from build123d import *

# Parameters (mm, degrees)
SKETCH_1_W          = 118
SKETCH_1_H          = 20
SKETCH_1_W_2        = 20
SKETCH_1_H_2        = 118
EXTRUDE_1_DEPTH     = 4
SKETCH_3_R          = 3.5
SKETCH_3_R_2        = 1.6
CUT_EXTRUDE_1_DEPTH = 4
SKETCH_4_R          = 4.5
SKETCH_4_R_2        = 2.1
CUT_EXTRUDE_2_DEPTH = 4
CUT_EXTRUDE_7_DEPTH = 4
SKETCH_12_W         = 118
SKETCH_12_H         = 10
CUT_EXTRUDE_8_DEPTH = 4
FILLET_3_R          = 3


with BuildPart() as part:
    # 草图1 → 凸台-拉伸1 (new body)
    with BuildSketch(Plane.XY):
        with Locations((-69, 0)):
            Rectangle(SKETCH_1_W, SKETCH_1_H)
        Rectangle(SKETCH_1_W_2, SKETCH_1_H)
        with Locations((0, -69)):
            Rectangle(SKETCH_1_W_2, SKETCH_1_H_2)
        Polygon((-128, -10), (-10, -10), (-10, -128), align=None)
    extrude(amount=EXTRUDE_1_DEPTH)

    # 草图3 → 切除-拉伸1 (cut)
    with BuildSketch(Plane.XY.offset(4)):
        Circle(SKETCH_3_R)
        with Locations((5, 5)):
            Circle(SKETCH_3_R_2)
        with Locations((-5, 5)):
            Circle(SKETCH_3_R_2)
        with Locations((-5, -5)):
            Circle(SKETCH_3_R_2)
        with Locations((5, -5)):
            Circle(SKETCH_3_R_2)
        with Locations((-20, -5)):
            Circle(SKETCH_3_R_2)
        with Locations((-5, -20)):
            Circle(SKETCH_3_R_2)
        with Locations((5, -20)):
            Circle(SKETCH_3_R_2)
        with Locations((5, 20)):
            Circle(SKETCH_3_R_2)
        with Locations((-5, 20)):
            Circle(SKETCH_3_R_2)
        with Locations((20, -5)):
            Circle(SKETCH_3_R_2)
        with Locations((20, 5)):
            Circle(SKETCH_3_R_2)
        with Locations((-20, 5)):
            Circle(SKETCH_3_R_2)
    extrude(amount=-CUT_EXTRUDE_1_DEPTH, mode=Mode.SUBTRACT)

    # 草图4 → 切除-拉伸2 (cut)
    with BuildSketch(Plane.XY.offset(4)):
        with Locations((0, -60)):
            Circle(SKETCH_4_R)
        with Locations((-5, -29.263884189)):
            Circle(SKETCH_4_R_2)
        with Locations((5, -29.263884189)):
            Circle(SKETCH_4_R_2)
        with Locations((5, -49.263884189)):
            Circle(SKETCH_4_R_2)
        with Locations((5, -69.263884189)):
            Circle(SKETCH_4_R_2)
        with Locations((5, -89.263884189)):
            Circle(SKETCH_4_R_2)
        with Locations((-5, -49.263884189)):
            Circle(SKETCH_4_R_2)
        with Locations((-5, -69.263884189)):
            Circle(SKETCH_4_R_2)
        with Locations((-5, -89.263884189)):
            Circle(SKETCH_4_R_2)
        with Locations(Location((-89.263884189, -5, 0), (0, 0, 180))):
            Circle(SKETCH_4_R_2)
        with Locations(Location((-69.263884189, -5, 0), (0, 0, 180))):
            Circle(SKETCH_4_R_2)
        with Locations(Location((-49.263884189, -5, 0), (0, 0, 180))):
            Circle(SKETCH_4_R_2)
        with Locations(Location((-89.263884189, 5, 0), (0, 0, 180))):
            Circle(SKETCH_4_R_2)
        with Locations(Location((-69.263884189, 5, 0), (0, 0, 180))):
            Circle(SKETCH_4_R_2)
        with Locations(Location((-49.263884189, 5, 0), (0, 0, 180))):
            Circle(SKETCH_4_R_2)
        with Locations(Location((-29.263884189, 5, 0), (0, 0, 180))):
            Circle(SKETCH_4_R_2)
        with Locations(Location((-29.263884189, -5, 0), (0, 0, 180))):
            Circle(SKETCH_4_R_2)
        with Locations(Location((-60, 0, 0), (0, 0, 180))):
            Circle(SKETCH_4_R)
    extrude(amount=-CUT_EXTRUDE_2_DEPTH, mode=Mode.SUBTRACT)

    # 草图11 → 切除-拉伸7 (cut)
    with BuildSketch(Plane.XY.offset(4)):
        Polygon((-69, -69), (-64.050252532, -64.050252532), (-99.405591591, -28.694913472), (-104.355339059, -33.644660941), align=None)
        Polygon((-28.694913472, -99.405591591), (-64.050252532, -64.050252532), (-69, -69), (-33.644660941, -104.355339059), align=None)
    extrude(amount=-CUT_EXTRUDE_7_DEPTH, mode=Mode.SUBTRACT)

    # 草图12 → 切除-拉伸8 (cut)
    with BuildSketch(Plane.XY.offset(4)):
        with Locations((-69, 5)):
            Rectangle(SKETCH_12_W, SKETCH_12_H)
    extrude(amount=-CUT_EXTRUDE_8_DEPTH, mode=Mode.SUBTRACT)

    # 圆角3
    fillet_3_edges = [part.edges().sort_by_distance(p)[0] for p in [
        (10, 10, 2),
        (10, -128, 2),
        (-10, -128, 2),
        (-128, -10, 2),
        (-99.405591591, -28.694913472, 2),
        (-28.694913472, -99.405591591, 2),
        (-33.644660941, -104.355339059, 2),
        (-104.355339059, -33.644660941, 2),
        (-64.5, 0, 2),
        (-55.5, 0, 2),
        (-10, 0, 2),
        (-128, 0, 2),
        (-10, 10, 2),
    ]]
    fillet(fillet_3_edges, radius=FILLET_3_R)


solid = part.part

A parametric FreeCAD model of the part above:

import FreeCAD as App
import Part
import Sketcher
Q = App.Units.Quantity


def edges_at(feature, points):
    """Names of the edges that pass closest to the given points."""
    edges = feature.Shape.Edges
    near = lambda p: min(range(len(edges)), key=lambda i: edges[i].distToShape(Part.Vertex(*p))[0])
    return sorted({f"Edge{near(p) + 1}" for p in points})

doc = App.newDocument("Part")
body = doc.addObject("PartDesign::Body", "Body")

# Sketch on XY plane
sketch1 = doc.addObject("Sketcher::SketchObject", "Sketch")
body.addObject(sketch1)
sketch1.AttachmentSupport = (doc.XY_Plane, [""])
sketch1.MapMode = "FlatFace"
sketch1.addGeometry(Part.LineSegment(App.Vector(-128, 10, 0), App.Vector(-128, -10, 0)), False)
sketch1.addGeometry(Part.LineSegment(App.Vector(-128, -10, 0), App.Vector(-10, -128, 0)), False)
sketch1.addGeometry(Part.LineSegment(App.Vector(-10, -128, 0), App.Vector(10, -128, 0)), False)
sketch1.addGeometry(Part.LineSegment(App.Vector(10, -128, 0), App.Vector(10, 10, 0)), False)
sketch1.addGeometry(Part.LineSegment(App.Vector(10, 10, 0), App.Vector(-128, 10, 0)), False)
sketch1.addConstraint(Sketcher.Constraint("Coincident", 0, 2, 1, 1))
sketch1.addConstraint(Sketcher.Constraint("Coincident", 1, 2, 2, 1))
sketch1.addConstraint(Sketcher.Constraint("Coincident", 2, 2, 3, 1))
sketch1.addConstraint(Sketcher.Constraint("Coincident", 3, 2, 4, 1))
sketch1.addConstraint(Sketcher.Constraint("Coincident", 4, 2, 0, 1))
sketch1.addConstraint(Sketcher.Constraint("Vertical", 0))
sketch1.addConstraint(Sketcher.Constraint("Horizontal", 2))
sketch1.addConstraint(Sketcher.Constraint("Vertical", 3))
sketch1.addConstraint(Sketcher.Constraint("Horizontal", 4))
sketch1.addConstraint(Sketcher.Constraint("Equal", 2, 0))
sketch1.addConstraint(Sketcher.Constraint("Equal", 4, 3))
sketch1.addConstraint(Sketcher.Constraint("DistanceX", 2, 1, 2, 2, 20.0))
sketch1.addConstraint(Sketcher.Constraint("DistanceX", 4, 2, 4, 1, 138.0))
sketch1.addConstraint(Sketcher.Constraint("DistanceX", 0, 2, -1, 1, 128.0))
sketch1.addConstraint(Sketcher.Constraint("DistanceY", 0, 2, -1, 1, 10.0))
pad1 = doc.addObject("PartDesign::Pad", "Pad")
body.addObject(pad1)
pad1.Profile = sketch1
pad1.Length = 4

# Sketch on XY plane
sketch2 = doc.addObject("Sketcher::SketchObject", "Sketch001")
body.addObject(sketch2)
sketch2.AttachmentSupport = (doc.XY_Plane, [""])
sketch2.MapMode = "FlatFace"
sketch2.AttachmentOffset = App.Placement(App.Vector(0, 0, 4), App.Rotation())
sketch2.addGeometry(Part.Circle(App.Vector(0, 0, 0), App.Vector(0, 0, 1), 3.5), False)
sketch2.addGeometry(Part.Circle(App.Vector(5, 5, 0), App.Vector(0, 0, 1), 1.6), False)
sketch2.addGeometry(Part.Circle(App.Vector(-5, 5, 0), App.Vector(0, 0, 1), 1.6), False)
sketch2.addGeometry(Part.Circle(App.Vector(-5, -5, 0), App.Vector(0, 0, 1), 1.6), False)
sketch2.addGeometry(Part.Circle(App.Vector(5, -5, 0), App.Vector(0, 0, 1), 1.6), False)
sketch2.addGeometry(Part.Circle(App.Vector(-20, -5, 0), App.Vector(0, 0, 1), 1.6), False)
sketch2.addGeometry(Part.Circle(App.Vector(-5, -20, 0), App.Vector(0, 0, 1), 1.6), False)
sketch2.addGeometry(Part.Circle(App.Vector(5, -20, 0), App.Vector(0, 0, 1), 1.6), False)
sketch2.addGeometry(Part.Circle(App.Vector(5, 20, 0), App.Vector(0, 0, 1), 1.6), False)
sketch2.addGeometry(Part.Circle(App.Vector(-5, 20, 0), App.Vector(0, 0, 1), 1.6), False)
sketch2.addGeometry(Part.Circle(App.Vector(20, -5, 0), App.Vector(0, 0, 1), 1.6), False)
sketch2.addGeometry(Part.Circle(App.Vector(20, 5, 0), App.Vector(0, 0, 1), 1.6), False)
sketch2.addGeometry(Part.Circle(App.Vector(-20, 5, 0), App.Vector(0, 0, 1), 1.6), False)
sketch2.addConstraint(Sketcher.Constraint("Coincident", 0, 3, -1, 1))
sketch2.addConstraint(Sketcher.Constraint("Equal", 1, 2))
sketch2.addConstraint(Sketcher.Constraint("Equal", 2, 3))
sketch2.addConstraint(Sketcher.Constraint("Equal", 3, 4))
sketch2.addConstraint(Sketcher.Constraint("Equal", 4, 5))
sketch2.addConstraint(Sketcher.Constraint("Equal", 5, 6))
sketch2.addConstraint(Sketcher.Constraint("Equal", 6, 7))
sketch2.addConstraint(Sketcher.Constraint("Equal", 7, 8))
sketch2.addConstraint(Sketcher.Constraint("Equal", 8, 9))
sketch2.addConstraint(Sketcher.Constraint("Equal", 9, 10))
sketch2.addConstraint(Sketcher.Constraint("Equal", 10, 11))
sketch2.addConstraint(Sketcher.Constraint("Equal", 11, 12))
sketch2.addConstraint(Sketcher.Constraint("Symmetric", 1, 3, 3, 3, -1, 1))
sketch2.addConstraint(Sketcher.Constraint("Symmetric", 2, 3, 4, 3, -1, 1))
sketch2.addConstraint(Sketcher.Constraint("Symmetric", 6, 3, 8, 3, -1, 1))
sketch2.addConstraint(Sketcher.Constraint("Symmetric", 7, 3, 9, 3, -1, 1))
sketch2.addConstraint(Sketcher.Constraint("Symmetric", 5, 3, 11, 3, -1, 1))
sketch2.addConstraint(Sketcher.Constraint("Symmetric", 10, 3, 12, 3, -1, 1))
sketch2.addConstraint(Sketcher.Constraint("Symmetric", 1, 3, 2, 3, -2))
sketch2.addConstraint(Sketcher.Constraint("Symmetric", 6, 3, 7, 3, -2))
sketch2.addConstraint(Sketcher.Constraint("Symmetric", 5, 3, 10, 3, -2))
sketch2.addConstraint(Sketcher.Constraint("Horizontal", 4, 3, 5, 3))
sketch2.addConstraint(Sketcher.Constraint("Vertical", 3, 3, 6, 3))
sketch2.addConstraint(Sketcher.Constraint("Diameter", 0, 7.0))
sketch2.addConstraint(Sketcher.Constraint("Diameter", 1, 3.2))
sketch2.addConstraint(Sketcher.Constraint("DistanceX", -1, 1, 1, 3, 5.0))
sketch2.addConstraint(Sketcher.Constraint("DistanceY", -1, 1, 1, 3, 5.0))
sketch2.addConstraint(Sketcher.Constraint("DistanceX", 5, 3, -1, 1, 20.0))
sketch2.addConstraint(Sketcher.Constraint("DistanceY", 6, 3, -1, 1, 20.0))
pocket1 = doc.addObject("PartDesign::Pocket", "Pocket")
body.addObject(pocket1)
pocket1.Profile = sketch2
pocket1.Length = 4

# Sketch on XY plane
sketch3 = doc.addObject("Sketcher::SketchObject", "Sketch002")
body.addObject(sketch3)
sketch3.AttachmentSupport = (doc.XY_Plane, [""])
sketch3.MapMode = "FlatFace"
sketch3.AttachmentOffset = App.Placement(App.Vector(0, 0, 4), App.Rotation())
sketch3.addGeometry(Part.Circle(App.Vector(0, -60, 0), App.Vector(0, 0, 1), 4.5), False)
sketch3.addGeometry(Part.Circle(App.Vector(-5, -29.263884, 0), App.Vector(0, 0, 1), 2.1), False)
sketch3.addGeometry(Part.Circle(App.Vector(5, -29.263884, 0), App.Vector(0, 0, 1), 2.1), False)
sketch3.addGeometry(Part.Circle(App.Vector(5, -49.263884, 0), App.Vector(0, 0, 1), 2.1), False)
sketch3.addGeometry(Part.Circle(App.Vector(5, -69.263884, 0), App.Vector(0, 0, 1), 2.1), False)
sketch3.addGeometry(Part.Circle(App.Vector(5, -89.263884, 0), App.Vector(0, 0, 1), 2.1), False)
sketch3.addGeometry(Part.Circle(App.Vector(-5, -49.263884, 0), App.Vector(0, 0, 1), 2.1), False)
sketch3.addGeometry(Part.Circle(App.Vector(-5, -69.263884, 0), App.Vector(0, 0, 1), 2.1), False)
sketch3.addGeometry(Part.Circle(App.Vector(-5, -89.263884, 0), App.Vector(0, 0, 1), 2.1), False)
sketch3.addGeometry(Part.Circle(App.Vector(-89.263884, -5, 0), App.Vector(0, 0, 1), 2.1), False)
sketch3.addGeometry(Part.Circle(App.Vector(-69.263884, -5, 0), App.Vector(0, 0, 1), 2.1), False)
sketch3.addGeometry(Part.Circle(App.Vector(-49.263884, -5, 0), App.Vector(0, 0, 1), 2.1), False)
sketch3.addGeometry(Part.Circle(App.Vector(-89.263884, 5, 0), App.Vector(0, 0, 1), 2.1), False)
sketch3.addGeometry(Part.Circle(App.Vector(-69.263884, 5, 0), App.Vector(0, 0, 1), 2.1), False)
sketch3.addGeometry(Part.Circle(App.Vector(-49.263884, 5, 0), App.Vector(0, 0, 1), 2.1), False)
sketch3.addGeometry(Part.Circle(App.Vector(-29.263884, 5, 0), App.Vector(0, 0, 1), 2.1), False)
sketch3.addGeometry(Part.Circle(App.Vector(-29.263884, -5, 0), App.Vector(0, 0, 1), 2.1), False)
sketch3.addGeometry(Part.Circle(App.Vector(-60, 0, 0), App.Vector(0, 0, 1), 4.5), False)
sketch3.addConstraint(Sketcher.Constraint("Equal", 1, 2))
sketch3.addConstraint(Sketcher.Constraint("Equal", 2, 3))
sketch3.addConstraint(Sketcher.Constraint("Equal", 3, 4))
sketch3.addConstraint(Sketcher.Constraint("Equal", 4, 5))
sketch3.addConstraint(Sketcher.Constraint("Equal", 5, 6))
sketch3.addConstraint(Sketcher.Constraint("Equal", 6, 7))
sketch3.addConstraint(Sketcher.Constraint("Equal", 7, 8))
sketch3.addConstraint(Sketcher.Constraint("Equal", 8, 9))
sketch3.addConstraint(Sketcher.Constraint("Equal", 9, 10))
sketch3.addConstraint(Sketcher.Constraint("Equal", 10, 11))
sketch3.addConstraint(Sketcher.Constraint("Equal", 11, 12))
sketch3.addConstraint(Sketcher.Constraint("Equal", 12, 13))
sketch3.addConstraint(Sketcher.Constraint("Equal", 13, 14))
sketch3.addConstraint(Sketcher.Constraint("Equal", 14, 15))
sketch3.addConstraint(Sketcher.Constraint("Equal", 15, 16))
sketch3.addConstraint(Sketcher.Constraint("Equal", 0, 17))
sketch3.addConstraint(Sketcher.Constraint("Symmetric", 1, 3, 2, 3, -2))
sketch3.addConstraint(Sketcher.Constraint("Symmetric", 3, 3, 6, 3, -2))
sketch3.addConstraint(Sketcher.Constraint("Symmetric", 4, 3, 7, 3, -2))
sketch3.addConstraint(Sketcher.Constraint("Symmetric", 5, 3, 8, 3, -2))
sketch3.addConstraint(Sketcher.Constraint("Symmetric", 9, 3, 12, 3, -1))
sketch3.addConstraint(Sketcher.Constraint("Symmetric", 10, 3, 13, 3, -1))
sketch3.addConstraint(Sketcher.Constraint("Symmetric", 11, 3, 14, 3, -1))
sketch3.addConstraint(Sketcher.Constraint("Symmetric", 15, 3, 16, 3, -1))
sketch3.addConstraint(Sketcher.Constraint("PointOnObject", 0, 3, -2))
sketch3.addConstraint(Sketcher.Constraint("PointOnObject", 17, 3, -1))
sketch3.addConstraint(Sketcher.Constraint("Horizontal", 9, 3, 10, 3))
sketch3.addConstraint(Sketcher.Constraint("Horizontal", 10, 3, 11, 3))
sketch3.addConstraint(Sketcher.Constraint("Horizontal", 14, 3, 15, 3))
sketch3.addConstraint(Sketcher.Constraint("Vertical", 2, 3, 3, 3))
sketch3.addConstraint(Sketcher.Constraint("Vertical", 3, 3, 4, 3))
sketch3.addConstraint(Sketcher.Constraint("Vertical", 4, 3, 5, 3))
sketch3.addConstraint(Sketcher.Constraint("Diameter", 0, 9.0))
sketch3.addConstraint(Sketcher.Constraint("Diameter", 1, 4.2))
sketch3.addConstraint(Sketcher.Constraint("DistanceY", 0, 3, -1, 1, 60.0))
sketch3.addConstraint(Sketcher.Constraint("DistanceX", 1, 3, -1, 1, 5.0))
sketch3.addConstraint(Sketcher.Constraint("DistanceY", 9, 3, -1, 1, 5.0))
sketch3.addConstraint(Sketcher.Constraint("DistanceX", 17, 3, -1, 1, 60.0))
sketch3.addConstraint(Sketcher.Constraint("DistanceY", 3, 3, 2, 3, 20.0))
sketch3.addConstraint(Sketcher.Constraint("DistanceY", 4, 3, 3, 3, 20.0))
sketch3.addConstraint(Sketcher.Constraint("DistanceY", 5, 3, 4, 3, 20.0))
sketch3.addConstraint(Sketcher.Constraint("DistanceX", 9, 3, 10, 3, 20.0))
sketch3.addConstraint(Sketcher.Constraint("DistanceX", 10, 3, 11, 3, 20.0))
sketch3.addConstraint(Sketcher.Constraint("DistanceX", 14, 3, 15, 3, 20.0))
sketch3.addConstraint(Sketcher.Constraint("DistanceY", 1, 3, -1, 1, 29.263884))
sketch3.addConstraint(Sketcher.Constraint("DistanceX", 9, 3, -1, 1, 89.263884))
pocket2 = doc.addObject("PartDesign::Pocket", "Pocket001")
body.addObject(pocket2)
pocket2.Profile = sketch3
pocket2.Length = 4

# Sketch on XY plane
sketch4 = doc.addObject("Sketcher::SketchObject", "Sketch003")
body.addObject(sketch4)
sketch4.AttachmentSupport = (doc.XY_Plane, [""])
sketch4.MapMode = "FlatFace"
sketch4.AttachmentOffset = App.Placement(App.Vector(0, 0, 4), App.Rotation())
sketch4.addGeometry(Part.LineSegment(App.Vector(-64.050253, -64.050253, 0), App.Vector(-99.405592, -28.694913, 0)), False)
sketch4.addGeometry(Part.LineSegment(App.Vector(-99.405592, -28.694913, 0), App.Vector(-104.355339, -33.644661, 0)), False)
sketch4.addGeometry(Part.LineSegment(App.Vector(-104.355339, -33.644661, 0), App.Vector(-33.644661, -104.355339, 0)), False)
sketch4.addGeometry(Part.LineSegment(App.Vector(-33.644661, -104.355339, 0), App.Vector(-28.694913, -99.405592, 0)), False)
sketch4.addGeometry(Part.LineSegment(App.Vector(-28.694913, -99.405592, 0), App.Vector(-64.050253, -64.050253, 0)), False)
sketch4.addConstraint(Sketcher.Constraint("Coincident", 0, 2, 1, 1))
sketch4.addConstraint(Sketcher.Constraint("Coincident", 1, 2, 2, 1))
sketch4.addConstraint(Sketcher.Constraint("Coincident", 2, 2, 3, 1))
sketch4.addConstraint(Sketcher.Constraint("Coincident", 3, 2, 4, 1))
sketch4.addConstraint(Sketcher.Constraint("Coincident", 4, 2, 0, 1))
sketch4.addConstraint(Sketcher.Constraint("Perpendicular", 0, 1))
sketch4.addConstraint(Sketcher.Constraint("Perpendicular", 1, 2))
sketch4.addConstraint(Sketcher.Constraint("Perpendicular", 2, 3))
sketch4.addConstraint(Sketcher.Constraint("Perpendicular", 3, 4))
sketch4.addConstraint(Sketcher.Constraint("Equal", 0, 4))
sketch4.addConstraint(Sketcher.Constraint("Angle", 0, Q("135 deg")))
sketch4.addConstraint(Sketcher.Constraint("Distance", 0, 50.0))
sketch4.addConstraint(Sketcher.Constraint("Distance", 1, 7.0))
sketch4.addConstraint(Sketcher.Constraint("DistanceX", 0, 2, -1, 1, 99.405592))
sketch4.addConstraint(Sketcher.Constraint("DistanceY", 1, 2, -1, 1, 33.644661))
pocket3 = doc.addObject("PartDesign::Pocket", "Pocket002")
body.addObject(pocket3)
pocket3.Profile = sketch4
pocket3.Length = 4

# Sketch on XY plane
sketch5 = doc.addObject("Sketcher::SketchObject", "Sketch004")
body.addObject(sketch5)
sketch5.AttachmentSupport = (doc.XY_Plane, [""])
sketch5.MapMode = "FlatFace"
sketch5.AttachmentOffset = App.Placement(App.Vector(0, 0, 4), App.Rotation())
sketch5.addGeometry(Part.LineSegment(App.Vector(-128, 10, 0), App.Vector(-128, 0, 0)), False)
sketch5.addGeometry(Part.LineSegment(App.Vector(-128, 0, 0), App.Vector(-10, 0, 0)), False)
sketch5.addGeometry(Part.LineSegment(App.Vector(-10, 0, 0), App.Vector(-10, 10, 0)), False)
sketch5.addGeometry(Part.LineSegment(App.Vector(-10, 10, 0), App.Vector(-128, 10, 0)), False)
sketch5.addConstraint(Sketcher.Constraint("Coincident", 0, 2, 1, 1))
sketch5.addConstraint(Sketcher.Constraint("Coincident", 1, 2, 2, 1))
sketch5.addConstraint(Sketcher.Constraint("Coincident", 2, 2, 3, 1))
sketch5.addConstraint(Sketcher.Constraint("Coincident", 3, 2, 0, 1))
sketch5.addConstraint(Sketcher.Constraint("Vertical", 0))
sketch5.addConstraint(Sketcher.Constraint("Horizontal", 1))
sketch5.addConstraint(Sketcher.Constraint("Vertical", 2))
sketch5.addConstraint(Sketcher.Constraint("Horizontal", 3))
sketch5.addConstraint(Sketcher.Constraint("PointOnObject", 0, 2, -1))
sketch5.addConstraint(Sketcher.Constraint("DistanceX", 1, 1, 1, 2, 118.0))
sketch5.addConstraint(Sketcher.Constraint("DistanceY", 0, 2, 0, 1, 10.0))
sketch5.addConstraint(Sketcher.Constraint("DistanceX", 0, 2, -1, 1, 128.0))
pocket4 = doc.addObject("PartDesign::Pocket", "Pocket003")
body.addObject(pocket4)
pocket4.Profile = sketch5
pocket4.Length = 4
doc.recompute()

fillet = doc.addObject("PartDesign::Fillet", "Fillet")
body.addObject(fillet)
fillet.Base = (pocket4, edges_at(pocket4, [
    (10, 10, 2),
    (10, -128, 2),
    (-10, -128, 2),
    (-128, -10, 2),
    (-99.406, -28.695, 2),
    (-28.695, -99.406, 2),
    (-33.645, -104.355, 2),
    (-104.355, -33.645, 2),
    (-64.5, 0, 2),
    (-55.5, 0, 2),
    (-10, 0, 2),
    (-128, 0, 2),
    (-10, 10, 2),
]))
fillet.Radius = 3

doc.recompute()
